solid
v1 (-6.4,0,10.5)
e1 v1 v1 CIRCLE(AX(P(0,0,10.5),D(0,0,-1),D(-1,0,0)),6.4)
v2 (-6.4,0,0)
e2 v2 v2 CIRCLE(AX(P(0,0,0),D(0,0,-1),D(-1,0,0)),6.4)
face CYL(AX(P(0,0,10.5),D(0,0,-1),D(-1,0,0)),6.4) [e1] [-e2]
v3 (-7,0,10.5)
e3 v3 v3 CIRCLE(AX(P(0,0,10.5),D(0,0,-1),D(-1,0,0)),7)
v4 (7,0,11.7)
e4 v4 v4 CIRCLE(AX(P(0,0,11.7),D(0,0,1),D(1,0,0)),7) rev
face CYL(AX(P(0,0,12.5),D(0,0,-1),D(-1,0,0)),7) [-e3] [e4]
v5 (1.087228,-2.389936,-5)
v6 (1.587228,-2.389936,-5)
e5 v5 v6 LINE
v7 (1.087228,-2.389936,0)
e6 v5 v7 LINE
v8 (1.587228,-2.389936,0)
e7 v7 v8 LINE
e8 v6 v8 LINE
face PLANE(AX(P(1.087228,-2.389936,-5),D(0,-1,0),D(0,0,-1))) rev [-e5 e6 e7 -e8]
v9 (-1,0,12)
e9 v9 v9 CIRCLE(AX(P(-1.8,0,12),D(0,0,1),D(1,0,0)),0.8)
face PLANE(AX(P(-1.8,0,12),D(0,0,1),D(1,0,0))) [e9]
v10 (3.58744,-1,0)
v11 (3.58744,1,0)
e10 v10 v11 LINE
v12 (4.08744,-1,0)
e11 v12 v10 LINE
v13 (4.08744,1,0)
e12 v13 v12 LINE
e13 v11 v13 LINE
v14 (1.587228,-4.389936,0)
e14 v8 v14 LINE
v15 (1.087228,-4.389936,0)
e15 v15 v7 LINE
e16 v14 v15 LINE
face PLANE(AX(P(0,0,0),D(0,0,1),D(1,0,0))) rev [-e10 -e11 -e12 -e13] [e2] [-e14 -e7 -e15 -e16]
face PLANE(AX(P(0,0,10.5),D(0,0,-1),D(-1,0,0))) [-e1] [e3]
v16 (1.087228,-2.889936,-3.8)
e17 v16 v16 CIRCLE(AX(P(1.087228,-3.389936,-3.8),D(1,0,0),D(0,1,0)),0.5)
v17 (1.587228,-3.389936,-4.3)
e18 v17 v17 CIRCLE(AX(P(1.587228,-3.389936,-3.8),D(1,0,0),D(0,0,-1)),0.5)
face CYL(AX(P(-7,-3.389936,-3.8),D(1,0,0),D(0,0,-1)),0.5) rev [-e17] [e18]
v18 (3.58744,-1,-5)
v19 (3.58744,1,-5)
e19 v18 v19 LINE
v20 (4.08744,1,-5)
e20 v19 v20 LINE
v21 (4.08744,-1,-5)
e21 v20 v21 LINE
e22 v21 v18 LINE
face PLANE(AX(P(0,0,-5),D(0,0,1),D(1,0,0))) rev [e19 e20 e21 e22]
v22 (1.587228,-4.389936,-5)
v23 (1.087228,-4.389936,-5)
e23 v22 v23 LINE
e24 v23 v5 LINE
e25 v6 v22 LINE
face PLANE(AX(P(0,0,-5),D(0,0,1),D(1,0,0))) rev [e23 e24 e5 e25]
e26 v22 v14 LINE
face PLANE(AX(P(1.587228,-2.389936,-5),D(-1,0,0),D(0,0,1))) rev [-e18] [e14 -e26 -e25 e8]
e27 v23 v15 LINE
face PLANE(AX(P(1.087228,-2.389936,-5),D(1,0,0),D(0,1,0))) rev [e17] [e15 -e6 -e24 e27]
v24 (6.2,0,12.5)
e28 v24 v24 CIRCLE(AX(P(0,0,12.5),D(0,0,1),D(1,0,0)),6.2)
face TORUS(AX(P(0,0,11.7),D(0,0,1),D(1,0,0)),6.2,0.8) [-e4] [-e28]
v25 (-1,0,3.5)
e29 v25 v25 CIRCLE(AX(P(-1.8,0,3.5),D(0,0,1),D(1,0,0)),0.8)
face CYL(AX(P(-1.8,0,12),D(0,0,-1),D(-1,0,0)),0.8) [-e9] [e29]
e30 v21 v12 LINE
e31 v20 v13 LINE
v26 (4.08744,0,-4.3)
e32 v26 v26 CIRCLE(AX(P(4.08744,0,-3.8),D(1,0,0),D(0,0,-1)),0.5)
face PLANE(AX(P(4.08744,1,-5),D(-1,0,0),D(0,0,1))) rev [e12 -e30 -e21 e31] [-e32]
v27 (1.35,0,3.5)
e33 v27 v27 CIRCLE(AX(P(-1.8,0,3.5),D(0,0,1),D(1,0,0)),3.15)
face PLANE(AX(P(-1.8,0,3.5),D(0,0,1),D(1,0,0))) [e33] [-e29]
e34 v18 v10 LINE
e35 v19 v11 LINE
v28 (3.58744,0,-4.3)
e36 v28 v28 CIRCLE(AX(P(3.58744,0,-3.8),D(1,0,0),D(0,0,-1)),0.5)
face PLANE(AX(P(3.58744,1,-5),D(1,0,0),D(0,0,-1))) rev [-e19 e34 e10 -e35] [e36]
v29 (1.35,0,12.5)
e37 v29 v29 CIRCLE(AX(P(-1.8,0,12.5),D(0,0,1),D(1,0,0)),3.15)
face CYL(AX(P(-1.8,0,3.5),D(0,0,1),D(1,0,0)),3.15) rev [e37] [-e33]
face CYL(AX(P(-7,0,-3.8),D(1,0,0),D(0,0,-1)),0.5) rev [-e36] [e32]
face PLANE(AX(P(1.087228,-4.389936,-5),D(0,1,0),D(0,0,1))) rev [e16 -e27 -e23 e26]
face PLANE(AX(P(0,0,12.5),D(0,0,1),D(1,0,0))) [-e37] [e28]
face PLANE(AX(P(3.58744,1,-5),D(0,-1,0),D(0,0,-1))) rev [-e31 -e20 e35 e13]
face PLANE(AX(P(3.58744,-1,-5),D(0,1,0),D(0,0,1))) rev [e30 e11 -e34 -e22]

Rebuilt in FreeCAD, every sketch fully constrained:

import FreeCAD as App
import Part
import Sketcher
from FreeCAD import Vector
Q = App.Units.Quantity


def edges_at(feature, points):
    """Names of the edges that pass closest to the given points."""
    edges = feature.Shape.Edges
    near = lambda p: min(range(len(edges)), key=lambda i: edges[i].distToShape(Part.Vertex(*p))[0])
    return sorted({f"Edge{near(p) + 1}" for p in points})

doc = App.newDocument("Part")
body = doc.addObject("PartDesign::Body", "Body")

# Sketch on XY plane
sketch1 = body.newObject("Sketcher::SketchObject", "Sketch")
sketch1.AttachmentSupport = (doc.getObject("XY_Plane"), [""])
sketch1.MapMode = "FlatFace"
sketch1.addGeometry(Part.Circle(Vector(0, 0, 0), Vector(0, 0, 1), 7), False)
sketch1.addConstraint([
    Sketcher.Constraint("Coincident", 0, 3, -1, 1),
    Sketcher.Constraint("Diameter", 0, Q("14 mm")),
])
pad1 = body.newObject("PartDesign::Pad", "Pad")
pad1.Profile = sketch1
pad1.Length = 12.5

# Sketch on XY plane
sketch2 = body.newObject("Sketcher::SketchObject", "Sketch001")
sketch2.AttachmentSupport = (doc.getObject("XY_Plane"), [""])
sketch2.MapMode = "FlatFace"
sketch2.addGeometry([
    Part.Circle(Vector(0, 0, 0), Vector(0, 0, 1), 7),
    Part.Circle(Vector(0, 0, 0), Vector(0, 0, 1), 6.4),
], False)
sketch2.addConstraint([
    Sketcher.Constraint("Coincident", 0, 3, -1, 1),
    Sketcher.Constraint("Coincident", 1, 3, -1, 1),
    Sketcher.Constraint("Diameter", 0, Q("14 mm")),
    Sketcher.Constraint("Diameter", 1, Q("12.8 mm")),
])
pocket1 = body.newObject("PartDesign::Pocket", "Pocket")
pocket1.Profile = sketch2
pocket1.Length = 10.5
pocket1.Reversed = True

# Sketch on XY plane
sketch3 = body.newObject("Sketcher::SketchObject", "Sketch002")
sketch3.AttachmentSupport = (doc.getObject("XY_Plane"), [""])
sketch3.MapMode = "FlatFace"
sketch3.AttachmentOffset = App.Placement(Vector(0, 0, 12.5), App.Rotation())
sketch3.addGeometry(Part.Circle(Vector(-1.8, 0, 0), Vector(0, 0, 1), 3.15), False)
sketch3.addConstraint([
    Sketcher.Constraint("PointOnObject", 0, 3, -1),
    Sketcher.Constraint("Diameter", 0, Q("6.3 mm")),
    Sketcher.Constraint("DistanceX", 0, 3, -1, 1, Q("1.8 mm")),
])
pocket2 = body.newObject("PartDesign::Pocket", "Pocket001")
pocket2.Profile = sketch3
pocket2.Length = 9

# Sketch on XY plane
sketch4 = body.newObject("Sketcher::SketchObject", "Sketch003")
sketch4.AttachmentSupport = (doc.getObject("XY_Plane"), [""])
sketch4.MapMode = "FlatFace"
sketch4.AttachmentOffset = App.Placement(Vector(0, 0, 3.5), App.Rotation())
sketch4.addGeometry(Part.Circle(Vector(-1.8, 0, 0), Vector(0, 0, 1), 0.8), False)
sketch4.addConstraint([
    Sketcher.Constraint("PointOnObject", 0, 3, -1),
    Sketcher.Constraint("Diameter", 0, Q("1.6 mm")),
    Sketcher.Constraint("DistanceX", 0, 3, -1, 1, Q("1.8 mm")),
])
pad2 = body.newObject("PartDesign::Pad", "Pad001")
pad2.Profile = sketch4
pad2.Length = 8.5

# Sketch on XY plane
sketch5 = body.newObject("Sketcher::SketchObject", "Sketch004")
sketch5.AttachmentSupport = (doc.getObject("XY_Plane"), [""])
sketch5.MapMode = "FlatFace"
sketch5.addGeometry([
    Part.LineSegment(Vector(4.08744, 1, 0), Vector(4.08744, -1, 0)),  # 0
    Part.LineSegment(Vector(4.08744, -1, 0), Vector(3.58744, -1, 0)),  # 1
    Part.LineSegment(Vector(3.58744, -1, 0), Vector(3.58744, 1, 0)),  # 2
    Part.LineSegment(Vector(3.58744, 1, 0), Vector(4.08744, 1, 0)),  # 3
    Part.LineSegment(Vector(1.587228, -2.389936, 0), Vector(1.587228, -4.389936, 0)),  # 4
    Part.LineSegment(Vector(1.587228, -4.389936, 0), Vector(1.087228, -4.389936, 0)),  # 5
    Part.LineSegment(Vector(1.087228, -4.389936, 0), Vector(1.087228, -2.389936, 0)),  # 6
    Part.LineSegment(Vector(1.087228, -2.389936, 0), Vector(1.587228, -2.389936, 0)),  # 7
], False)
sketch5.addConstraint([
    Sketcher.Constraint("Coincident", 0, 2, 1, 1),
    Sketcher.Constraint("Coincident", 1, 2, 2, 1),
    Sketcher.Constraint("Coincident", 2, 2, 3, 1),
    Sketcher.Constraint("Coincident", 3, 2, 0, 1),
    Sketcher.Constraint("Coincident", 4, 2, 5, 1),
    Sketcher.Constraint("Coincident", 5, 2, 6, 1),
    Sketcher.Constraint("Coincident", 6, 2, 7, 1),
    Sketcher.Constraint("Coincident", 7, 2, 4, 1),
    Sketcher.Constraint("Vertical", 0),
    Sketcher.Constraint("Horizontal", 1),
    Sketcher.Constraint("Vertical", 2),
    Sketcher.Constraint("Horizontal", 3),
    Sketcher.Constraint("Vertical", 4),
    Sketcher.Constraint("Horizontal", 5),
    Sketcher.Constraint("Vertical", 6),
    Sketcher.Constraint("Horizontal", 7),
    Sketcher.Constraint("Equal", 3, 5),
    Sketcher.Constraint("Equal", 2, 4),
    Sketcher.Constraint("DistanceY", 0, 2, 0, 1, Q("2 mm")),
    Sketcher.Constraint("DistanceX", 1, 2, 1, 1, Q("0.5 mm")),
    Sketcher.Constraint("DistanceY", 0, 2, -1, 1, Q("1 mm")),
    Sketcher.Constraint("DistanceX", -1, 1, 0, 2, Q("4.08744 mm")),
    Sketcher.Constraint("DistanceX", -1, 1, 4, 2, Q("1.587228 mm")),
    Sketcher.Constraint("DistanceY", 4, 2, -1, 1, Q("4.389936 mm")),
])
pad3 = body.newObject("PartDesign::Pad", "Pad002")
pad3.Profile = sketch5
pad3.Length = 5
pad3.Reversed = True

# Sketch on YZ plane
sketch6 = body.newObject("Sketcher::SketchObject", "Sketch005")
sketch6.AttachmentSupport = (doc.getObject("YZ_Plane"), [""])
sketch6.MapMode = "FlatFace"
sketch6.AttachmentOffset = App.Placement(Vector(0, 0, 1.587228), App.Rotation())
sketch6.addGeometry(Part.Circle(Vector(-3.389936, -3.8, 0), Vector(0, 0, 1), 0.5), False)
sketch6.addConstraint([
    Sketcher.Constraint("Diameter", 0, Q("1 mm")),
    Sketcher.Constraint("DistanceY", 0, 3, -1, 1, Q("3.8 mm")),
    Sketcher.Constraint("DistanceX", 0, 3, -1, 1, Q("3.389936 mm")),
])
pocket3 = body.newObject("PartDesign::Pocket", "Pocket002")
pocket3.Profile = sketch6
pocket3.Type = "ThroughAll"

# Sketch on YZ plane
sketch7 = body.newObject("Sketcher::SketchObject", "Sketch006")
sketch7.AttachmentSupport = (doc.getObject("YZ_Plane"), [""])
sketch7.MapMode = "FlatFace"
sketch7.AttachmentOffset = App.Placement(Vector(0, 0, 4.08744), App.Rotation())
sketch7.addGeometry(Part.Circle(Vector(0, -3.8, 0), Vector(0, 0, 1), 0.5), False)
sketch7.addConstraint([
    Sketcher.Constraint("PointOnObject", 0, 3, -2),
    Sketcher.Constraint("Diameter", 0, Q("1 mm")),
    Sketcher.Constraint("DistanceY", 0, 3, -1, 1, Q("3.8 mm")),
])
pocket4 = body.newObject("PartDesign::Pocket", "Pocket003")
pocket4.Profile = sketch7
pocket4.Type = "ThroughAll"
doc.recompute()

fillet = body.newObject("PartDesign::Fillet", "Fillet")
fillet.Base = (pocket4, edges_at(pocket4, [(-7, 0, 12.5)]))
fillet.Radius = 0.8

doc.recompute()
